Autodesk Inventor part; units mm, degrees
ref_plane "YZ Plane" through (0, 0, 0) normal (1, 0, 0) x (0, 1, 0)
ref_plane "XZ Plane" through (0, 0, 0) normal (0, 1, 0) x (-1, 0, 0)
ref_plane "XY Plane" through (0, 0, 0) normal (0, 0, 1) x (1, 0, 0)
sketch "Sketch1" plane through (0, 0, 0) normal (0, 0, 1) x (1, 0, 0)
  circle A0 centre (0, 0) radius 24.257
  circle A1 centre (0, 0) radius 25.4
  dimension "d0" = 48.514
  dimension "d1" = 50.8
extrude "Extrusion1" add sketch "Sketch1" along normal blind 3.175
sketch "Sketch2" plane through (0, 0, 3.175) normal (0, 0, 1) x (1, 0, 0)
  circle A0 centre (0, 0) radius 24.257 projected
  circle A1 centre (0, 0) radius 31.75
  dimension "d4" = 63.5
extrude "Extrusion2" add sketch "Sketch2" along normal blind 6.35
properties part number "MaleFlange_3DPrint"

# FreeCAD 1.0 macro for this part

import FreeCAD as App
import Part
import Sketcher
Q = App.Units.Quantity

doc = App.newDocument("Part")
body = doc.addObject("PartDesign::Body", "Body")

# Sketch on XY plane
sketch1 = body.newObject("Sketcher::SketchObject", "Sketch")
sketch1.AttachmentSupport = (doc.getObject("XY_Plane"), [""])
sketch1.MapMode = "FlatFace"
sketch1.addGeometry(Part.Circle(App.Vector(0, 0, 0), App.Vector(0, 0, 1), 25), False)
sketch1.addGeometry(Part.Circle(App.Vector(0, 0, 0), App.Vector(0, 0, 1), 24), False)
sketch1.addConstraint(Sketcher.Constraint("Coincident", 0, 3, -1, 1))
sketch1.addConstraint(Sketcher.Constraint("Coincident", 1, 3, -1, 1))
sketch1.addConstraint(Sketcher.Constraint("Diameter", 0, Q("2 in")))
sketch1.addConstraint(Sketcher.Constraint("Diameter", 1, Q("1.91 in")))
pad1 = body.newObject("PartDesign::Pad", "Pad")
pad1.Profile = sketch1
pad1.Length = Q("0.125 in")

# Sketch on XY plane
sketch2 = body.newObject("Sketcher::SketchObject", "Sketch001")
sketch2.AttachmentSupport = (doc.getObject("XY_Plane"), [""])
sketch2.MapMode = "FlatFace"
sketch2.AttachmentOffset = App.Placement(App.Vector(0, 0, 0.125 * 25.4), App.Rotation())
sketch2.addGeometry(Part.Circle(App.Vector(0, 0, 0), App.Vector(0, 0, 1), 32), False)
sketch2.addGeometry(Part.Circle(App.Vector(0, 0, 0), App.Vector(0, 0, 1), 24), False)
sketch2.addConstraint(Sketcher.Constraint("Coincident", 0, 3, -1, 1))
sketch2.addConstraint(Sketcher.Constraint("Coincident", 1, 3, -1, 1))
sketch2.addConstraint(Sketcher.Constraint("Diameter", 0, Q("2.5 in")))
sketch2.addConstraint(Sketcher.Constraint("Diameter", 1, Q("1.91 in")))
pad2 = body.newObject("PartDesign::Pad", "Pad001")
pad2.Profile = sketch2
pad2.Length = Q("0.25 in")

doc.recompute()
